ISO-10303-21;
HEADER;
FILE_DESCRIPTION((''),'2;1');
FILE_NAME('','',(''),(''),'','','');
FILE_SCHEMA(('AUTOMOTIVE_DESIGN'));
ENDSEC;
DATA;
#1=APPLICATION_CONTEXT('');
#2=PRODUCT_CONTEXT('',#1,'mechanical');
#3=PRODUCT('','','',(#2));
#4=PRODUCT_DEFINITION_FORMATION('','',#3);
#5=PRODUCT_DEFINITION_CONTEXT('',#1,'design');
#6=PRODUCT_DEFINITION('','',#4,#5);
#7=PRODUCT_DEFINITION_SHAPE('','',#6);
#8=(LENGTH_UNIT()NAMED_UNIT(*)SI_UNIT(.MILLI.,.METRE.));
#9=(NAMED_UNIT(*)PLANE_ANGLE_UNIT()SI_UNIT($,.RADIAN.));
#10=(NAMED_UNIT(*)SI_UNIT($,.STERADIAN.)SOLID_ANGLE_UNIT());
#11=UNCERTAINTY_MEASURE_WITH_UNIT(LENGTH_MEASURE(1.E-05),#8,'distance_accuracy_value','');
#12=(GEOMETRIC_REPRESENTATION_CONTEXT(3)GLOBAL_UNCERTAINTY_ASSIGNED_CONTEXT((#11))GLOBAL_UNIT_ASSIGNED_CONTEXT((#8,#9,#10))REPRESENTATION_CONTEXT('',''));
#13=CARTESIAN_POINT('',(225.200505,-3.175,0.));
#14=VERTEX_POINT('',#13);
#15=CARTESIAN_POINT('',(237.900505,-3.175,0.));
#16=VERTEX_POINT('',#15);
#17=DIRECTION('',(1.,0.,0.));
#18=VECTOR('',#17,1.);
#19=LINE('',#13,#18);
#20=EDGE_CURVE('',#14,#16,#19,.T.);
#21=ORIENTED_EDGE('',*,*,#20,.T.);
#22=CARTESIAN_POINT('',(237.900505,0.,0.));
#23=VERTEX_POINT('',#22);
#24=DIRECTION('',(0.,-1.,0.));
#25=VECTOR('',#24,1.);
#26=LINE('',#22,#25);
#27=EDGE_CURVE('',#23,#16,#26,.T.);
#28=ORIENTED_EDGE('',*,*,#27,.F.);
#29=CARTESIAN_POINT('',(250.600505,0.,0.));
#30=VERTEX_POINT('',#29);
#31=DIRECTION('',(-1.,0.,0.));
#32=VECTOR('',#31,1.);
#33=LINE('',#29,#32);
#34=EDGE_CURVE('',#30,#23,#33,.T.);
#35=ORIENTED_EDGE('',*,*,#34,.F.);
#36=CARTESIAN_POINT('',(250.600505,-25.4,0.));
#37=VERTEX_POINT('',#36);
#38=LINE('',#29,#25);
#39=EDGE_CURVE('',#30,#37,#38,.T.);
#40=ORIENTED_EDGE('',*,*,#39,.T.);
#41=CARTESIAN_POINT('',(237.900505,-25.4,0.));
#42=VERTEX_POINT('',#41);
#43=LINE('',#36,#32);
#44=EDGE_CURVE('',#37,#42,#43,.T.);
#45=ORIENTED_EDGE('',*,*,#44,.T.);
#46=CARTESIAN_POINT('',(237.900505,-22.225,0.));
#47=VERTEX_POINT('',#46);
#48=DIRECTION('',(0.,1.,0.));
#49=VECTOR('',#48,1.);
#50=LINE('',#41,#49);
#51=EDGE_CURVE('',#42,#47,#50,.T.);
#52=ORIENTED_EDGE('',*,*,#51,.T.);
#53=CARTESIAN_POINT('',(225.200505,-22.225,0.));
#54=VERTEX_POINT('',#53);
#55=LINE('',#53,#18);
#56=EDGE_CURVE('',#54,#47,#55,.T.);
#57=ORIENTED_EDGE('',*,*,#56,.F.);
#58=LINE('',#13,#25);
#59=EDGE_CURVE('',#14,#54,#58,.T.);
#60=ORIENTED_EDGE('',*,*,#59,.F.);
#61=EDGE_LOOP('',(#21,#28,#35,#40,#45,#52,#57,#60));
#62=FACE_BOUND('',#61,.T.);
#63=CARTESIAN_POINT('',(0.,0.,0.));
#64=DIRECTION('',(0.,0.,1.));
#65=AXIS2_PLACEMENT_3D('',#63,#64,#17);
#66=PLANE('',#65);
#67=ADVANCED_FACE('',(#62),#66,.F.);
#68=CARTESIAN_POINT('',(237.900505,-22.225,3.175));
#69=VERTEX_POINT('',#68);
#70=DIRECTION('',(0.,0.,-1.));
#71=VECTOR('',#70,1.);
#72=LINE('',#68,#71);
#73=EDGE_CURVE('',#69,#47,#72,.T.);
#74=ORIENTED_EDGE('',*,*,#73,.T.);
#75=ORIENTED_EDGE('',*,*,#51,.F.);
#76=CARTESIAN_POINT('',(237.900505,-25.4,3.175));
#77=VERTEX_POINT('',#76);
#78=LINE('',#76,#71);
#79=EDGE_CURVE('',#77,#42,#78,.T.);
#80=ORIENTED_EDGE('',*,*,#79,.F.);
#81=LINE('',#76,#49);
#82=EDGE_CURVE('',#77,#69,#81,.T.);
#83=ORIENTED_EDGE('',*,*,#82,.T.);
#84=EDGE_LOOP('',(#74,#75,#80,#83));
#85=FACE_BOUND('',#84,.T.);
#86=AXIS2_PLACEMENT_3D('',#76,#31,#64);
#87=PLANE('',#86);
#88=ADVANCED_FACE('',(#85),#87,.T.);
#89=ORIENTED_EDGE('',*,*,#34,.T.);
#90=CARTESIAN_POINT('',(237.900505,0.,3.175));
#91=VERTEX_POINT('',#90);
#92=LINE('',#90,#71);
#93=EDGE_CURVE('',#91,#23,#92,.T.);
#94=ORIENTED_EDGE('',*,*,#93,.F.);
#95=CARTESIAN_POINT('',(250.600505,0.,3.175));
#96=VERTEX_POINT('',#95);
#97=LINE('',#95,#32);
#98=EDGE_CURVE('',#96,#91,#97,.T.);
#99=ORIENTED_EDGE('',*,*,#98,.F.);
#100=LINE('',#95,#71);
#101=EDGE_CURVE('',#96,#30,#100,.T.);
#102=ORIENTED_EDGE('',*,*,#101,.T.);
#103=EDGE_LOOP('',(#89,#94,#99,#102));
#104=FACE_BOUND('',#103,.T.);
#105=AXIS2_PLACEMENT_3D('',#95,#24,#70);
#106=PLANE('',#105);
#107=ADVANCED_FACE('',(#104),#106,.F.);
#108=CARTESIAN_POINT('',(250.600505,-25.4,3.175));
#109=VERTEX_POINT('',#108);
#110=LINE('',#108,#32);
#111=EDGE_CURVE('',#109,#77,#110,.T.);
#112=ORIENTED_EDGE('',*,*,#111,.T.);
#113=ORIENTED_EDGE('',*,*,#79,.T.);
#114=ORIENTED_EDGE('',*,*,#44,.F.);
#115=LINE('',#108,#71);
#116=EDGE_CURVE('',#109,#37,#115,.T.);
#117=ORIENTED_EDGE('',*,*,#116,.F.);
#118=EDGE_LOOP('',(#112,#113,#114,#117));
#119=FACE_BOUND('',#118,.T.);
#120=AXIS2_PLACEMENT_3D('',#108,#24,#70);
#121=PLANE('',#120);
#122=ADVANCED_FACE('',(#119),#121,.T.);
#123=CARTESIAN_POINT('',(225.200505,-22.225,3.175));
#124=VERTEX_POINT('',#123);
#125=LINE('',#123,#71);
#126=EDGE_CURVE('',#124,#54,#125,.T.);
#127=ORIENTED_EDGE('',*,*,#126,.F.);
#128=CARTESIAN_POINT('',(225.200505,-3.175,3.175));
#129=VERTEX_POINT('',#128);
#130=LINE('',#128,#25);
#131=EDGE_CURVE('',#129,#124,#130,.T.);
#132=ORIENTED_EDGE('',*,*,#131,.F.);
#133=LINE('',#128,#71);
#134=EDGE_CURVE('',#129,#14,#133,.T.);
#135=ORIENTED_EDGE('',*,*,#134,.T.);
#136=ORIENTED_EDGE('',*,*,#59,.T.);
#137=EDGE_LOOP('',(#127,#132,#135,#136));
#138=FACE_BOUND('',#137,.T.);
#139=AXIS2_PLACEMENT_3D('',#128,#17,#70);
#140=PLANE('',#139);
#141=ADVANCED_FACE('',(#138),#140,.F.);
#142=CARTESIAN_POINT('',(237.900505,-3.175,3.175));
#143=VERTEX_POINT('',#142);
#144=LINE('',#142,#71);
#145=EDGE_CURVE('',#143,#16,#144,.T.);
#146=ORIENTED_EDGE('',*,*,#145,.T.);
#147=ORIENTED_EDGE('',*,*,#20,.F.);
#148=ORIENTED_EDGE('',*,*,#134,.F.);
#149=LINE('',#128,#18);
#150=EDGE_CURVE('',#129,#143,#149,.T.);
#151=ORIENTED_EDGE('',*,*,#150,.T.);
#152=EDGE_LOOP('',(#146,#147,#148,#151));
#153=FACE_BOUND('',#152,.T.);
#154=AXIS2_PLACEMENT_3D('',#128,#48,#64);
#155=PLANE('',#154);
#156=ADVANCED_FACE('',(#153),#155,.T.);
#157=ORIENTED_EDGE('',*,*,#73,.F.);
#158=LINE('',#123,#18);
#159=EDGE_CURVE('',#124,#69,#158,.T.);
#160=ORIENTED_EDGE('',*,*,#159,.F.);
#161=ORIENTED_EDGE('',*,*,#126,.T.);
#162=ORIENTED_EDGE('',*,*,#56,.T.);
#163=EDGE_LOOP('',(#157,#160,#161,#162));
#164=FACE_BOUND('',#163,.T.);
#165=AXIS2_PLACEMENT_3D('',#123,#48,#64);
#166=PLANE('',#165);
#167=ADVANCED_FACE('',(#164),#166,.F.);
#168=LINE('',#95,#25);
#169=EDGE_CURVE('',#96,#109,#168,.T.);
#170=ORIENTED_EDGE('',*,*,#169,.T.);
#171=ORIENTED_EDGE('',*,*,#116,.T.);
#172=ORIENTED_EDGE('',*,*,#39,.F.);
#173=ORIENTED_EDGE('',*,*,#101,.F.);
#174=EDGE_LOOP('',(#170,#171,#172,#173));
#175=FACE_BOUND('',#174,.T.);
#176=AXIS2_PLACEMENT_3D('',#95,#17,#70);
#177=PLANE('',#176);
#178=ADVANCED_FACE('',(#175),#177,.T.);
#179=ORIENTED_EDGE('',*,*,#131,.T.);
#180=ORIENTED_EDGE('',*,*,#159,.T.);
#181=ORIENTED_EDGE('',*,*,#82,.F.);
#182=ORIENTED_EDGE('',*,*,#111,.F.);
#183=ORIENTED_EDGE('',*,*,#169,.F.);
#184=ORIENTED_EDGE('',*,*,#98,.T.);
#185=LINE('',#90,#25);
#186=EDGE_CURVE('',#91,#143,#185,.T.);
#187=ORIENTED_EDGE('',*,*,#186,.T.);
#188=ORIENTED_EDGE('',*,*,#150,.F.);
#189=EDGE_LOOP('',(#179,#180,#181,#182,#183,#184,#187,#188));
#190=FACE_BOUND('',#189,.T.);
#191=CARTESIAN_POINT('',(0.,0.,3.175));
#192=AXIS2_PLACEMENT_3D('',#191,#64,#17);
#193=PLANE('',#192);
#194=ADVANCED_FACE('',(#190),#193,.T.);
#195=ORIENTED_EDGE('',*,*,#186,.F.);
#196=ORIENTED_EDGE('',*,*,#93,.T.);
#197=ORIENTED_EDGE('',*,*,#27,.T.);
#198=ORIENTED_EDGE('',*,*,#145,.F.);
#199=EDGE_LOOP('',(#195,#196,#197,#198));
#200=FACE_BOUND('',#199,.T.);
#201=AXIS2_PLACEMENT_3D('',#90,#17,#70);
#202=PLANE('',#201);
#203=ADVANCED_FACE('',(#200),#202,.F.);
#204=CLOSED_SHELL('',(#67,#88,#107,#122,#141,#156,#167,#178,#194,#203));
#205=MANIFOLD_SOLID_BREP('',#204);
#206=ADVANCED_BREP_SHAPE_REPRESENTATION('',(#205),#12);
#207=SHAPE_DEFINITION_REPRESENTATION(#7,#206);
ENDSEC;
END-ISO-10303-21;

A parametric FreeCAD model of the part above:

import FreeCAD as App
import Part
import Sketcher
from FreeCAD import Vector
Q = App.Units.Quantity


def add_polygon(sketch, points):
    """Adds a closed chain of lines whose ends are joined by coincident constraints."""
    first, n = sketch.GeometryCount, len(points)
    for a, b in zip(points, points[1:] + points[:1]):
        sketch.addGeometry(Part.LineSegment(App.Vector(*a, 0), App.Vector(*b, 0)), False)
    for i in range(n):
        sketch.addConstraint(Sketcher.Constraint("Coincident", first + i, 2, first + (i + 1) % n, 1))

doc = App.newDocument("Part")
body = doc.addObject("PartDesign::Body", "Body")

sketch1 = body.newObject("Sketcher::SketchObject", "Sketch")
sketch1.AttachmentSupport = (doc.getObject("XY_Plane"), [""])
sketch1.MapMode = "FlatFace"
add_polygon(sketch1, [(250.600505, 0), (237.900505, 0), (237.900505, -3.175), (225.200505, -3.175), (225.200505, -22.225), (237.900505, -22.225), (237.900505, -25.4), (250.600505, -25.4)])
sketch1.addConstraint([
    Sketcher.Constraint("Horizontal", 0),
    Sketcher.Constraint("Vertical", 1),
    Sketcher.Constraint("Horizontal", 2),
    Sketcher.Constraint("Vertical", 3),
    Sketcher.Constraint("Horizontal", 4),
    Sketcher.Constraint("Vertical", 5),
    Sketcher.Constraint("Horizontal", 6),
    Sketcher.Constraint("Vertical", 7),
    Sketcher.Constraint("PointOnObject", 0, 2, -1),
    Sketcher.Constraint("Vertical", 1, 2, 4, 2),
    Sketcher.Constraint("Equal", 0, 2),
    Sketcher.Constraint("Equal", 1, 5),
    Sketcher.Constraint("DistanceY", 7, 1, 7, 2, Q("1 in")),
    Sketcher.Constraint("DistanceX", 0, 2, 0, 1, Q("0.5 in")),
    Sketcher.Constraint("DistanceY", 3, 2, 3, 1, Q("0.75 in")),
    Sketcher.Constraint("DistanceX", -1, 1, 0, 2, 237.900505),
])
pad1 = body.newObject("PartDesign::Pad", "Pad")
pad1.Profile = sketch1
pad1.Length = Q("0.125 in")

doc.recompute()
